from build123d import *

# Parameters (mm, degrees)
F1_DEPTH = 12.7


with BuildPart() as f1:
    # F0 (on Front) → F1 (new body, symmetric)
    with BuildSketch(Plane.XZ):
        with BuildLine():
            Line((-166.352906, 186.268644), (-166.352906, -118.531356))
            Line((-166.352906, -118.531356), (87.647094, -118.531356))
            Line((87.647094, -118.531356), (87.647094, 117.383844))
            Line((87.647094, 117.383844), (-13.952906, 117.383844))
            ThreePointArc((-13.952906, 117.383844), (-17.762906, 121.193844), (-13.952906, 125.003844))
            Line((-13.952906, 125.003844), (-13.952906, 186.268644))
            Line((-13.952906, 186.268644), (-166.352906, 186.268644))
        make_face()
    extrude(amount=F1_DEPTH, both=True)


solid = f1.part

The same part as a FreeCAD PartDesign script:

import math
import FreeCAD as App
import Part
import Sketcher
from FreeCAD import Vector
Q = App.Units.Quantity

doc = App.newDocument("Part")
params = doc.addObject("Spreadsheet::Sheet", "Params")
for row, (alias, value) in enumerate([
    ("sketch1_width", "10 in"),
    ("sketch1_width2", "4 in"),
    ("sketch1_height", "12 in"),
    ("sketch1_radius", "0.15 in"),
    ("sketch1_height2", "9.288 in"),
    ("pad1_length", "1 in"),
], start=1):
    params.set(f"A{row}", alias)
    params.set(f"B{row}", "=" + value)
    params.setAlias(f"B{row}", alias)

body = doc.addObject("PartDesign::Body", "Body")

# Sketch on XZ plane
sketch1 = body.newObject("Sketcher::SketchObject", "Sketch")
sketch1.AttachmentSupport = (doc.getObject("XZ_Plane"), [""])
sketch1.MapMode = "FlatFace"
sketch1.addGeometry([
    Part.LineSegment(Vector(-166.4, 186.3, 0), Vector(-166.4, -118.5, 0)),  # 0
    Part.LineSegment(Vector(-166.4, -118.5, 0), Vector(87.6, -118.5, 0)),  # 1
    Part.LineSegment(Vector(87.6, -118.5, 0), Vector(87.6, 117.4, 0)),  # 2
    Part.LineSegment(Vector(87.6, 117.4, 0), Vector(-14, 117.4, 0)),  # 3
    Part.ArcOfCircle(Part.Circle(Vector(-14, 121.2, 0), Vector(0, 0, 1), 3.8), math.radians(90), math.radians(270)),  # 4
    Part.LineSegment(Vector(-14, 125, 0), Vector(-14, 186.3, 0)),  # 5
    Part.LineSegment(Vector(-14, 186.3, 0), Vector(-166.4, 186.3, 0)),  # 6
], False)
sketch1.addConstraint([
    Sketcher.Constraint("Coincident", 0, 2, 1, 1),
    Sketcher.Constraint("Coincident", 1, 2, 2, 1),
    Sketcher.Constraint("Coincident", 2, 2, 3, 1),
    Sketcher.Constraint("Tangent", 3, 2, 4, 2),
    Sketcher.Constraint("Coincident", 4, 1, 5, 1),
    Sketcher.Constraint("Coincident", 5, 2, 6, 1),
    Sketcher.Constraint("Coincident", 6, 2, 0, 1),
    Sketcher.Constraint("Vertical", 0),
    Sketcher.Constraint("Horizontal", 1),
    Sketcher.Constraint("Vertical", 2),
    Sketcher.Constraint("Horizontal", 3),
    Sketcher.Constraint("Vertical", 5),
    Sketcher.Constraint("Horizontal", 6),
    Sketcher.Constraint("Vertical", 3, 2, 4, 1),
    Sketcher.Constraint("DistanceX", 1, 1, 1, 2, Q("10 in")),
    Sketcher.Constraint("DistanceX", 3, 2, 3, 1, Q("4 in")),
    Sketcher.Constraint("DistanceY", 0, 2, 0, 1, Q("12 in")),
    Sketcher.Constraint("Radius", 4, Q("0.15 in")),
    Sketcher.Constraint("DistanceY", 2, 1, 2, 2, Q("9.288 in")),
    Sketcher.Constraint("DistanceX", 4, 3, -1, 1, Q("13.952906 mm")),
    Sketcher.Constraint("DistanceY", -1, 1, 4, 3, Q("121.193844 mm")),
])
sketch1.setExpression("Constraints[14]", "Params.sketch1_width")
sketch1.setExpression("Constraints[15]", "Params.sketch1_width2")
sketch1.setExpression("Constraints[16]", "Params.sketch1_height")
sketch1.setExpression("Constraints[17]", "Params.sketch1_radius")
sketch1.setExpression("Constraints[18]", "Params.sketch1_height2")
pad1 = body.newObject("PartDesign::Pad", "Pad")
pad1.Profile = sketch1
pad1.setExpression("Length", "Params.pad1_length")
pad1.Midplane = True

doc.recompute()
